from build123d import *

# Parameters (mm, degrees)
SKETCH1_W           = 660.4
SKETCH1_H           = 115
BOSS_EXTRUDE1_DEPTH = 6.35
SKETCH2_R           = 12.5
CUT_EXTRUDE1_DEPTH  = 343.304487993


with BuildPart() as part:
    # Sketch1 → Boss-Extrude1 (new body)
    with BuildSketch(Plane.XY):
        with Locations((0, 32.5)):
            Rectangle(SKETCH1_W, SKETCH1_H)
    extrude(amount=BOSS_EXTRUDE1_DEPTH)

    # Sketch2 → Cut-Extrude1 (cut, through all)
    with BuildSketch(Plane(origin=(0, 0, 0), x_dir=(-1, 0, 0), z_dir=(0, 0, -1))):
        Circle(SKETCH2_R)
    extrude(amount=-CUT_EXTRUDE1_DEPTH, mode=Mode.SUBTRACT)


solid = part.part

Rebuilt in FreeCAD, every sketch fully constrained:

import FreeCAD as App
import Part
import Sketcher
from FreeCAD import Vector

doc = App.newDocument("Part")
params = doc.addObject("Spreadsheet::Sheet", "Params")
for row, (alias, value) in enumerate([
    ("sketch1_height", "115 mm"),
    ("sketch1_width", "660.4 mm"),
    ("pad1_length", "6.35 mm"),
    ("sketch2_diameter", "25 mm"),
], start=1):
    params.set(f"A{row}", alias)
    params.set(f"B{row}", "=" + value)
    params.setAlias(f"B{row}", alias)

body = doc.addObject("PartDesign::Body", "Body")

sketch1 = body.newObject("Sketcher::SketchObject", "Sketch")
sketch1.AttachmentSupport = (doc.getObject("XY_Plane"), [""])
sketch1.MapMode = "FlatFace"
sketch1.addGeometry([
    Part.LineSegment(Vector(-330, 90, 0), Vector(-330, -25, 0)),
    Part.LineSegment(Vector(-330, -25, 0), Vector(330, -25, 0)),
    Part.LineSegment(Vector(330, -25, 0), Vector(330, 90, 0)),
    Part.LineSegment(Vector(330, 90, 0), Vector(-330, 90, 0)),
], False)
sketch1.addConstraint([
    Sketcher.Constraint("Coincident", 0, 2, 1, 1),
    Sketcher.Constraint("Coincident", 1, 2, 2, 1),
    Sketcher.Constraint("Coincident", 2, 2, 3, 1),
    Sketcher.Constraint("Coincident", 3, 2, 0, 1),
    Sketcher.Constraint("Vertical", 0),
    Sketcher.Constraint("Horizontal", 1),
    Sketcher.Constraint("Vertical", 2),
    Sketcher.Constraint("Horizontal", 3),
    Sketcher.Constraint("DistanceY", 0, 2, 0, 1, 115.0),
    Sketcher.Constraint("DistanceX", 1, 1, 1, 2, 660.4),
    Sketcher.Constraint("DistanceY", 0, 2, -1, 1, 25.0),
    Sketcher.Constraint("DistanceX", 0, 2, -1, 1, 330.2),
])
sketch1.setExpression("Constraints[8]", "Params.sketch1_height")
sketch1.setExpression("Constraints[9]", "Params.sketch1_width")
pad1 = body.newObject("PartDesign::Pad", "Pad")
pad1.Profile = sketch1
pad1.setExpression("Length", "Params.pad1_length")

sketch2 = body.newObject("Sketcher::SketchObject", "Sketch001")
sketch2.AttachmentSupport = (doc.getObject("XY_Plane"), [""])
sketch2.MapMode = "FlatFace"
sketch2.addGeometry(Part.Circle(Vector(0, 0, 0), Vector(0, 0, 1), 12), False)
sketch2.addConstraint([
    Sketcher.Constraint("Coincident", 0, 3, -1, 1),
    Sketcher.Constraint("Diameter", 0, 25.0),
])
sketch2.setExpression("Constraints[1]", "Params.sketch2_diameter")
pocket1 = body.newObject("PartDesign::Pocket", "Pocket")
pocket1.Profile = sketch2
pocket1.Type = "ThroughAll"
pocket1.Reversed = True

doc.recompute()
